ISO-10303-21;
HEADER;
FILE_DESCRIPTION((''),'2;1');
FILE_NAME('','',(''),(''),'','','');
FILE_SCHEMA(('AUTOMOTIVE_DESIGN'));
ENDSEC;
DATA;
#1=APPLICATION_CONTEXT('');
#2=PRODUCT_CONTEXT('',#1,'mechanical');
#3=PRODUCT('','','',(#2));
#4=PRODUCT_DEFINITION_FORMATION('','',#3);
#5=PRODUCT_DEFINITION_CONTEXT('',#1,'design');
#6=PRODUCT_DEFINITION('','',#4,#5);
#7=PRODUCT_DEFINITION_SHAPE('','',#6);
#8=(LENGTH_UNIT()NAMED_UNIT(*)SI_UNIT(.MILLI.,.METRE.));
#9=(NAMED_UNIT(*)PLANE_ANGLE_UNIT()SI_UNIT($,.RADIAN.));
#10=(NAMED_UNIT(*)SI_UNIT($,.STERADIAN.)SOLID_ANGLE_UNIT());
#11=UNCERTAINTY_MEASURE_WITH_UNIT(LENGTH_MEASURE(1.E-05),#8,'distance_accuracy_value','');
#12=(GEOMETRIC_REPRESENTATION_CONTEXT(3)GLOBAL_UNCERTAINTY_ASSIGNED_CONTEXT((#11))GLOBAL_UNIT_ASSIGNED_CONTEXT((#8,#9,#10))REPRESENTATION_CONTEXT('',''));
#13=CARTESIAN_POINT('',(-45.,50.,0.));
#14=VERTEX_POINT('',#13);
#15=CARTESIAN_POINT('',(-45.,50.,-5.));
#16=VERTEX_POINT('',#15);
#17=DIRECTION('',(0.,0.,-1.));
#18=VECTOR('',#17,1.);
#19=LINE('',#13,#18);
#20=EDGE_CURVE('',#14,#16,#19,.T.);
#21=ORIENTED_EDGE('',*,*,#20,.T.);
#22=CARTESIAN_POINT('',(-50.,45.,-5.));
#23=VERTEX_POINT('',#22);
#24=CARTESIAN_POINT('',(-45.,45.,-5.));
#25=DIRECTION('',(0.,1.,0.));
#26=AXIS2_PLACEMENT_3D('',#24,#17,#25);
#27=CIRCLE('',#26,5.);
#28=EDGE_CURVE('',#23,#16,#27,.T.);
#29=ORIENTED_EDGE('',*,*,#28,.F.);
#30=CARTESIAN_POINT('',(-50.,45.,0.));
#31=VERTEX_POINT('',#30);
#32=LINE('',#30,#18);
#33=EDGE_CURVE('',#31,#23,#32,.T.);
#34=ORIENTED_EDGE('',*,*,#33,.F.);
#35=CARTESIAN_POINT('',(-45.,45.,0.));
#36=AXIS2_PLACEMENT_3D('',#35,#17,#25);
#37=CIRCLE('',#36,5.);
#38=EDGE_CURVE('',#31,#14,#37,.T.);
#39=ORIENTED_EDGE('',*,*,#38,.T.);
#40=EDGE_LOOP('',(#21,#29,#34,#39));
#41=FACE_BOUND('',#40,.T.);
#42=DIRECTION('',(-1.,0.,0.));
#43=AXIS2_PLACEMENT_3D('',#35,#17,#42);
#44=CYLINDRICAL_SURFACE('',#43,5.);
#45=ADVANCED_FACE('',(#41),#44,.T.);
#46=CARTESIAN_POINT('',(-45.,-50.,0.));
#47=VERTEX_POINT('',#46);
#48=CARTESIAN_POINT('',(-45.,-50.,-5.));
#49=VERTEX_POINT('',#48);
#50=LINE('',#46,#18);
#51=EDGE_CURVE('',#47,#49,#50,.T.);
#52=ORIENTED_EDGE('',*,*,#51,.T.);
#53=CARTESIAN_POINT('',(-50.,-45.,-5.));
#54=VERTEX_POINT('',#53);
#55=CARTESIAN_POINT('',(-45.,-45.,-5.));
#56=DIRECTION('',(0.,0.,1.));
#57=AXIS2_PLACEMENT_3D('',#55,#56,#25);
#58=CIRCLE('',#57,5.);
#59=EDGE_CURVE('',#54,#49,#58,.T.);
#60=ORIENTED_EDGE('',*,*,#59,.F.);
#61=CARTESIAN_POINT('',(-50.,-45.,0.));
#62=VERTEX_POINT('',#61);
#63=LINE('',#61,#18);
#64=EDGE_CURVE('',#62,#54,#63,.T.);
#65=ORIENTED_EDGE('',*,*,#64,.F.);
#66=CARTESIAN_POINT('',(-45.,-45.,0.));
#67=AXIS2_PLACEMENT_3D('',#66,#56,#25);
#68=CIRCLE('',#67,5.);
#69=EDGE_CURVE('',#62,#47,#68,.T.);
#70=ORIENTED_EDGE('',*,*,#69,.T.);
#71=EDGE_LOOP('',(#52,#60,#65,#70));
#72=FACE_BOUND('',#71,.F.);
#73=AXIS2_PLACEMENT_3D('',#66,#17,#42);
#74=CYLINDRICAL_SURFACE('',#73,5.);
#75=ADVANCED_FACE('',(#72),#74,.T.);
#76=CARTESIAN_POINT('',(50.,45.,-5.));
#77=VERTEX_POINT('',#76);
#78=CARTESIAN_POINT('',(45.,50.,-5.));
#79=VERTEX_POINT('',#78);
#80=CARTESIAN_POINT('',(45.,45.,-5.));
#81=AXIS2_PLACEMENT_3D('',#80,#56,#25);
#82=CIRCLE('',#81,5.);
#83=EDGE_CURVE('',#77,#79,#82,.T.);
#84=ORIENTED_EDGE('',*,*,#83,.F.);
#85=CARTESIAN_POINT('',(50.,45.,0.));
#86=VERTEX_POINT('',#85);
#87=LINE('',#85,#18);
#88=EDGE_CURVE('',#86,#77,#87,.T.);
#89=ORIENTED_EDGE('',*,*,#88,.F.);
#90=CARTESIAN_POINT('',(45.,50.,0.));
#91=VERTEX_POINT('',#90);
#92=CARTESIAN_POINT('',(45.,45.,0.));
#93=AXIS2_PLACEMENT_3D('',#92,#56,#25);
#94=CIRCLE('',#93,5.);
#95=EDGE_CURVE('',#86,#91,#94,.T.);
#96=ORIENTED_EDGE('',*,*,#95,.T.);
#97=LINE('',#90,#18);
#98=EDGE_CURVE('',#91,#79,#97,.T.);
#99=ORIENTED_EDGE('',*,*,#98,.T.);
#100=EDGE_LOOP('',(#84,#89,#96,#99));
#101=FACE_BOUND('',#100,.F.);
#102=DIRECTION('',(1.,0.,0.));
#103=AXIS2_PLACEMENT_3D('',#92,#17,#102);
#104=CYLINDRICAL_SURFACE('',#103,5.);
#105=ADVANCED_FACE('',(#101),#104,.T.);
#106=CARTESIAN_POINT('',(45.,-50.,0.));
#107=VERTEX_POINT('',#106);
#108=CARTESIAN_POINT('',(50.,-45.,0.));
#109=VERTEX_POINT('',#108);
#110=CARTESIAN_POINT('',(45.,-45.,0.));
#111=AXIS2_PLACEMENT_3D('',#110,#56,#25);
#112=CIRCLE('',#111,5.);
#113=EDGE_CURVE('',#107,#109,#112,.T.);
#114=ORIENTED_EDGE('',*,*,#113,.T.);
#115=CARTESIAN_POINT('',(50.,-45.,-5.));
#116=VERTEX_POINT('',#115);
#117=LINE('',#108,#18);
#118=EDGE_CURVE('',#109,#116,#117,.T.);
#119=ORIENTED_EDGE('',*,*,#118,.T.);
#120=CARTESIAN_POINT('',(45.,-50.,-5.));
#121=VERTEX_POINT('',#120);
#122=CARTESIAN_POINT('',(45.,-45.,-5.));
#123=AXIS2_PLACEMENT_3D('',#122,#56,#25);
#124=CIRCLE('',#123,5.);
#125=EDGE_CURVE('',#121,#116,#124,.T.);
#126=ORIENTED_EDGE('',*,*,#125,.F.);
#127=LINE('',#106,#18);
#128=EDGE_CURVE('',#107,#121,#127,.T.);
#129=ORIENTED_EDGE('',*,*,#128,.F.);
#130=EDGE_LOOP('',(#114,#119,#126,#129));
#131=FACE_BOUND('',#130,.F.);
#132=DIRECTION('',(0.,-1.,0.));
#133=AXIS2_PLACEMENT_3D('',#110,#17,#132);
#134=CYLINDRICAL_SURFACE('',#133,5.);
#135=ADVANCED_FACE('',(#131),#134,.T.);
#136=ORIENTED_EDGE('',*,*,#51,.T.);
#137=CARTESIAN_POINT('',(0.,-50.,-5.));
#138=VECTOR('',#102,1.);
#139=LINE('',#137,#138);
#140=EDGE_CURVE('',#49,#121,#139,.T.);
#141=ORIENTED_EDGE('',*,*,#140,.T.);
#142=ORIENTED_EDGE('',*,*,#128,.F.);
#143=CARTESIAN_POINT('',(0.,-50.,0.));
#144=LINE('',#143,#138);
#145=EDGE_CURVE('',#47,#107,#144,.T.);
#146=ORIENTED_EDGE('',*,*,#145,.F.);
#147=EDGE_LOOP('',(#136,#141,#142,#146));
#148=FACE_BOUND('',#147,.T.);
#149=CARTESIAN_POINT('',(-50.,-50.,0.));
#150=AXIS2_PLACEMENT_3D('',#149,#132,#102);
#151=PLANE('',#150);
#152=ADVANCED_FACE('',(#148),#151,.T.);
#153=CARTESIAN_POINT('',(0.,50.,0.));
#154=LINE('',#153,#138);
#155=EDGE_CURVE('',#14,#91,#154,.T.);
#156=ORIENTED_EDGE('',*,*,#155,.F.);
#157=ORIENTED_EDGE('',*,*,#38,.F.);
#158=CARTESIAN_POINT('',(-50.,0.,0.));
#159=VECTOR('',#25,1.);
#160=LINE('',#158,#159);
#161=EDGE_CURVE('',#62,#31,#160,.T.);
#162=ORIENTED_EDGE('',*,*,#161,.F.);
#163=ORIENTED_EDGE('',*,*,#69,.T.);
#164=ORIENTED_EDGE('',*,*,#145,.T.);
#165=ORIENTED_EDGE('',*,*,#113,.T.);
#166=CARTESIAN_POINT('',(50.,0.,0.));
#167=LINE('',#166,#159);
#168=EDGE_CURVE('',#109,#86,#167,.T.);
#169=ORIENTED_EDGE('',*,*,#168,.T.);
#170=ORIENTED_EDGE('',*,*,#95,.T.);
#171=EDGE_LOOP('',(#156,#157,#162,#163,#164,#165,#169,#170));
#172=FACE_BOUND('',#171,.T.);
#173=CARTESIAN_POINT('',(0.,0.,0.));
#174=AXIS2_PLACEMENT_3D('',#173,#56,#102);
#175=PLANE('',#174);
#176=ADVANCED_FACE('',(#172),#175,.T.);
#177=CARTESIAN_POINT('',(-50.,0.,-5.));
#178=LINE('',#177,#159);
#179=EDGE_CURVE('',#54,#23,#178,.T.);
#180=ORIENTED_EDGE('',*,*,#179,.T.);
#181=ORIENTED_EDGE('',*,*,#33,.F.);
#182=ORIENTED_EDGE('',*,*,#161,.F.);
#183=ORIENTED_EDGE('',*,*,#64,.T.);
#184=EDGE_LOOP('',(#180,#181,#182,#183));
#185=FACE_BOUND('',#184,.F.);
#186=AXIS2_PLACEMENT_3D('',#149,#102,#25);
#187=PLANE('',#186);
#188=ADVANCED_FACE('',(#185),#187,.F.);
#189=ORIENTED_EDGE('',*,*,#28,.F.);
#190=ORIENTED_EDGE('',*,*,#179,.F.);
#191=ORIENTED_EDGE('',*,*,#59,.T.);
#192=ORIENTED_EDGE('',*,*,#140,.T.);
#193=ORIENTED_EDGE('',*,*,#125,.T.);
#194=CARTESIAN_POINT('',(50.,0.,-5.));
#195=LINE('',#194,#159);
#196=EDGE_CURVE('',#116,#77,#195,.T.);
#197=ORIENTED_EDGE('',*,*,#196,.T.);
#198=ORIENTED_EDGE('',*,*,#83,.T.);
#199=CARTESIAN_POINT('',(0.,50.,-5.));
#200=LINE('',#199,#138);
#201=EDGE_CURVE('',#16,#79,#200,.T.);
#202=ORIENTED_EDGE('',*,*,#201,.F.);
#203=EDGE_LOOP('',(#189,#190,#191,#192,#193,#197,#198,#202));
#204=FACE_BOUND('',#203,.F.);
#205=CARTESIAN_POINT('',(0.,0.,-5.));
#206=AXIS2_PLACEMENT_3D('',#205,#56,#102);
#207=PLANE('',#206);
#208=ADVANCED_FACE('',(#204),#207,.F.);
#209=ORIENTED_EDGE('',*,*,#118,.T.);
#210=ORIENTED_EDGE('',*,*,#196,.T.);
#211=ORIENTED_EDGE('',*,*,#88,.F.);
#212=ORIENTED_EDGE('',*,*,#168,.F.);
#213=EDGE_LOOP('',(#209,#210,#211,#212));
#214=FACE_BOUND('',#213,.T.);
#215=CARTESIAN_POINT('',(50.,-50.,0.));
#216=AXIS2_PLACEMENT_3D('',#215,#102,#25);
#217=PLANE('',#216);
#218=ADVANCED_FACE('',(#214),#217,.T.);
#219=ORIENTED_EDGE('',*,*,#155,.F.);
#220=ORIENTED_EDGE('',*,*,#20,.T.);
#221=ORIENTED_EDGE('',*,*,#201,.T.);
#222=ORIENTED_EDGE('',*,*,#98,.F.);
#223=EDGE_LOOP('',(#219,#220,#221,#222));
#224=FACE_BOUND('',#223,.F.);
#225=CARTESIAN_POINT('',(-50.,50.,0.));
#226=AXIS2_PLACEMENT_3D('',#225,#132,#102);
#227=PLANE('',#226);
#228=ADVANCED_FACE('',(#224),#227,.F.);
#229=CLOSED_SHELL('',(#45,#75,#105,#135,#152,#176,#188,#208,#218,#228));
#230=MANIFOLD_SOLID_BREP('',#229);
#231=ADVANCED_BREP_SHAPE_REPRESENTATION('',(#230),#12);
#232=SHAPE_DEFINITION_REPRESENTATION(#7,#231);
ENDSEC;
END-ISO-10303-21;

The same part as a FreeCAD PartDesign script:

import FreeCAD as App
import Part
import Sketcher

V = App.Vector
Q = App.Units.Quantity


def edges_at(feature, points):
    """Names of the edges that pass closest to the given points."""
    edges = feature.Shape.Edges
    near = lambda p: min(range(len(edges)), key=lambda i: edges[i].distToShape(Part.Vertex(*p))[0])
    return sorted({f"Edge{near(p) + 1}" for p in points})

doc = App.newDocument("Part")
params = doc.addObject("Spreadsheet::Sheet", "Params")
for row, (alias, value) in enumerate([
    ("sketch1_width", "100 mm"),
    ("pad1_length", "5 mm"),
    ("fillet_radius", "5 mm"),
], start=1):
    params.set(f"A{row}", alias)
    params.set(f"B{row}", "=" + value)
    params.setAlias(f"B{row}", alias)

body = doc.addObject("PartDesign::Body", "Body")

# Sketch on XY plane
sketch1 = body.newObject("Sketcher::SketchObject", "Sketch")
sketch1.AttachmentSupport = (doc.getObject("XY_Plane"), [""])
sketch1.MapMode = "FlatFace"
sketch1.addGeometry(Part.LineSegment(V(-50, 50, 0), V(-50, -50, 0)), False)
sketch1.addGeometry(Part.LineSegment(V(-50, -50, 0), V(50, -50, 0)), False)
sketch1.addGeometry(Part.LineSegment(V(50, -50, 0), V(50, 50, 0)), False)
sketch1.addGeometry(Part.LineSegment(V(50, 50, 0), V(-50, 50, 0)), False)
sketch1.addConstraint(Sketcher.Constraint("Coincident", 0, 2, 1, 1))
sketch1.addConstraint(Sketcher.Constraint("Coincident", 1, 2, 2, 1))
sketch1.addConstraint(Sketcher.Constraint("Coincident", 2, 2, 3, 1))
sketch1.addConstraint(Sketcher.Constraint("Coincident", 3, 2, 0, 1))
sketch1.addConstraint(Sketcher.Constraint("Vertical", 0))
sketch1.addConstraint(Sketcher.Constraint("Horizontal", 1))
sketch1.addConstraint(Sketcher.Constraint("Vertical", 2))
sketch1.addConstraint(Sketcher.Constraint("Horizontal", 3))
sketch1.addConstraint(Sketcher.Constraint("Symmetric", 0, 2, 2, 2, -1, 1))
sketch1.addConstraint(Sketcher.Constraint("Equal", 3, 0))
sketch1.addConstraint(Sketcher.Constraint("DistanceX", 1, 1, 1, 2, Q("100 mm")))
sketch1.setExpression("Constraints[10]", "Params.sketch1_width")
pad1 = body.newObject("PartDesign::Pad", "Pad")
pad1.Profile = sketch1
pad1.setExpression("Length", "Params.pad1_length")
pad1.Reversed = True
doc.recompute()

fillet = body.newObject("PartDesign::Fillet", "Fillet")
fillet.Base = (pad1, edges_at(pad1, [
    (50, -50, -2.5),
    (-50, -50, -2.5),
    (50, 50, -2.5),
    (-50, 50, -2.5),
]))
fillet.setExpression("Radius", "Params.fillet_radius")

doc.recompute()
